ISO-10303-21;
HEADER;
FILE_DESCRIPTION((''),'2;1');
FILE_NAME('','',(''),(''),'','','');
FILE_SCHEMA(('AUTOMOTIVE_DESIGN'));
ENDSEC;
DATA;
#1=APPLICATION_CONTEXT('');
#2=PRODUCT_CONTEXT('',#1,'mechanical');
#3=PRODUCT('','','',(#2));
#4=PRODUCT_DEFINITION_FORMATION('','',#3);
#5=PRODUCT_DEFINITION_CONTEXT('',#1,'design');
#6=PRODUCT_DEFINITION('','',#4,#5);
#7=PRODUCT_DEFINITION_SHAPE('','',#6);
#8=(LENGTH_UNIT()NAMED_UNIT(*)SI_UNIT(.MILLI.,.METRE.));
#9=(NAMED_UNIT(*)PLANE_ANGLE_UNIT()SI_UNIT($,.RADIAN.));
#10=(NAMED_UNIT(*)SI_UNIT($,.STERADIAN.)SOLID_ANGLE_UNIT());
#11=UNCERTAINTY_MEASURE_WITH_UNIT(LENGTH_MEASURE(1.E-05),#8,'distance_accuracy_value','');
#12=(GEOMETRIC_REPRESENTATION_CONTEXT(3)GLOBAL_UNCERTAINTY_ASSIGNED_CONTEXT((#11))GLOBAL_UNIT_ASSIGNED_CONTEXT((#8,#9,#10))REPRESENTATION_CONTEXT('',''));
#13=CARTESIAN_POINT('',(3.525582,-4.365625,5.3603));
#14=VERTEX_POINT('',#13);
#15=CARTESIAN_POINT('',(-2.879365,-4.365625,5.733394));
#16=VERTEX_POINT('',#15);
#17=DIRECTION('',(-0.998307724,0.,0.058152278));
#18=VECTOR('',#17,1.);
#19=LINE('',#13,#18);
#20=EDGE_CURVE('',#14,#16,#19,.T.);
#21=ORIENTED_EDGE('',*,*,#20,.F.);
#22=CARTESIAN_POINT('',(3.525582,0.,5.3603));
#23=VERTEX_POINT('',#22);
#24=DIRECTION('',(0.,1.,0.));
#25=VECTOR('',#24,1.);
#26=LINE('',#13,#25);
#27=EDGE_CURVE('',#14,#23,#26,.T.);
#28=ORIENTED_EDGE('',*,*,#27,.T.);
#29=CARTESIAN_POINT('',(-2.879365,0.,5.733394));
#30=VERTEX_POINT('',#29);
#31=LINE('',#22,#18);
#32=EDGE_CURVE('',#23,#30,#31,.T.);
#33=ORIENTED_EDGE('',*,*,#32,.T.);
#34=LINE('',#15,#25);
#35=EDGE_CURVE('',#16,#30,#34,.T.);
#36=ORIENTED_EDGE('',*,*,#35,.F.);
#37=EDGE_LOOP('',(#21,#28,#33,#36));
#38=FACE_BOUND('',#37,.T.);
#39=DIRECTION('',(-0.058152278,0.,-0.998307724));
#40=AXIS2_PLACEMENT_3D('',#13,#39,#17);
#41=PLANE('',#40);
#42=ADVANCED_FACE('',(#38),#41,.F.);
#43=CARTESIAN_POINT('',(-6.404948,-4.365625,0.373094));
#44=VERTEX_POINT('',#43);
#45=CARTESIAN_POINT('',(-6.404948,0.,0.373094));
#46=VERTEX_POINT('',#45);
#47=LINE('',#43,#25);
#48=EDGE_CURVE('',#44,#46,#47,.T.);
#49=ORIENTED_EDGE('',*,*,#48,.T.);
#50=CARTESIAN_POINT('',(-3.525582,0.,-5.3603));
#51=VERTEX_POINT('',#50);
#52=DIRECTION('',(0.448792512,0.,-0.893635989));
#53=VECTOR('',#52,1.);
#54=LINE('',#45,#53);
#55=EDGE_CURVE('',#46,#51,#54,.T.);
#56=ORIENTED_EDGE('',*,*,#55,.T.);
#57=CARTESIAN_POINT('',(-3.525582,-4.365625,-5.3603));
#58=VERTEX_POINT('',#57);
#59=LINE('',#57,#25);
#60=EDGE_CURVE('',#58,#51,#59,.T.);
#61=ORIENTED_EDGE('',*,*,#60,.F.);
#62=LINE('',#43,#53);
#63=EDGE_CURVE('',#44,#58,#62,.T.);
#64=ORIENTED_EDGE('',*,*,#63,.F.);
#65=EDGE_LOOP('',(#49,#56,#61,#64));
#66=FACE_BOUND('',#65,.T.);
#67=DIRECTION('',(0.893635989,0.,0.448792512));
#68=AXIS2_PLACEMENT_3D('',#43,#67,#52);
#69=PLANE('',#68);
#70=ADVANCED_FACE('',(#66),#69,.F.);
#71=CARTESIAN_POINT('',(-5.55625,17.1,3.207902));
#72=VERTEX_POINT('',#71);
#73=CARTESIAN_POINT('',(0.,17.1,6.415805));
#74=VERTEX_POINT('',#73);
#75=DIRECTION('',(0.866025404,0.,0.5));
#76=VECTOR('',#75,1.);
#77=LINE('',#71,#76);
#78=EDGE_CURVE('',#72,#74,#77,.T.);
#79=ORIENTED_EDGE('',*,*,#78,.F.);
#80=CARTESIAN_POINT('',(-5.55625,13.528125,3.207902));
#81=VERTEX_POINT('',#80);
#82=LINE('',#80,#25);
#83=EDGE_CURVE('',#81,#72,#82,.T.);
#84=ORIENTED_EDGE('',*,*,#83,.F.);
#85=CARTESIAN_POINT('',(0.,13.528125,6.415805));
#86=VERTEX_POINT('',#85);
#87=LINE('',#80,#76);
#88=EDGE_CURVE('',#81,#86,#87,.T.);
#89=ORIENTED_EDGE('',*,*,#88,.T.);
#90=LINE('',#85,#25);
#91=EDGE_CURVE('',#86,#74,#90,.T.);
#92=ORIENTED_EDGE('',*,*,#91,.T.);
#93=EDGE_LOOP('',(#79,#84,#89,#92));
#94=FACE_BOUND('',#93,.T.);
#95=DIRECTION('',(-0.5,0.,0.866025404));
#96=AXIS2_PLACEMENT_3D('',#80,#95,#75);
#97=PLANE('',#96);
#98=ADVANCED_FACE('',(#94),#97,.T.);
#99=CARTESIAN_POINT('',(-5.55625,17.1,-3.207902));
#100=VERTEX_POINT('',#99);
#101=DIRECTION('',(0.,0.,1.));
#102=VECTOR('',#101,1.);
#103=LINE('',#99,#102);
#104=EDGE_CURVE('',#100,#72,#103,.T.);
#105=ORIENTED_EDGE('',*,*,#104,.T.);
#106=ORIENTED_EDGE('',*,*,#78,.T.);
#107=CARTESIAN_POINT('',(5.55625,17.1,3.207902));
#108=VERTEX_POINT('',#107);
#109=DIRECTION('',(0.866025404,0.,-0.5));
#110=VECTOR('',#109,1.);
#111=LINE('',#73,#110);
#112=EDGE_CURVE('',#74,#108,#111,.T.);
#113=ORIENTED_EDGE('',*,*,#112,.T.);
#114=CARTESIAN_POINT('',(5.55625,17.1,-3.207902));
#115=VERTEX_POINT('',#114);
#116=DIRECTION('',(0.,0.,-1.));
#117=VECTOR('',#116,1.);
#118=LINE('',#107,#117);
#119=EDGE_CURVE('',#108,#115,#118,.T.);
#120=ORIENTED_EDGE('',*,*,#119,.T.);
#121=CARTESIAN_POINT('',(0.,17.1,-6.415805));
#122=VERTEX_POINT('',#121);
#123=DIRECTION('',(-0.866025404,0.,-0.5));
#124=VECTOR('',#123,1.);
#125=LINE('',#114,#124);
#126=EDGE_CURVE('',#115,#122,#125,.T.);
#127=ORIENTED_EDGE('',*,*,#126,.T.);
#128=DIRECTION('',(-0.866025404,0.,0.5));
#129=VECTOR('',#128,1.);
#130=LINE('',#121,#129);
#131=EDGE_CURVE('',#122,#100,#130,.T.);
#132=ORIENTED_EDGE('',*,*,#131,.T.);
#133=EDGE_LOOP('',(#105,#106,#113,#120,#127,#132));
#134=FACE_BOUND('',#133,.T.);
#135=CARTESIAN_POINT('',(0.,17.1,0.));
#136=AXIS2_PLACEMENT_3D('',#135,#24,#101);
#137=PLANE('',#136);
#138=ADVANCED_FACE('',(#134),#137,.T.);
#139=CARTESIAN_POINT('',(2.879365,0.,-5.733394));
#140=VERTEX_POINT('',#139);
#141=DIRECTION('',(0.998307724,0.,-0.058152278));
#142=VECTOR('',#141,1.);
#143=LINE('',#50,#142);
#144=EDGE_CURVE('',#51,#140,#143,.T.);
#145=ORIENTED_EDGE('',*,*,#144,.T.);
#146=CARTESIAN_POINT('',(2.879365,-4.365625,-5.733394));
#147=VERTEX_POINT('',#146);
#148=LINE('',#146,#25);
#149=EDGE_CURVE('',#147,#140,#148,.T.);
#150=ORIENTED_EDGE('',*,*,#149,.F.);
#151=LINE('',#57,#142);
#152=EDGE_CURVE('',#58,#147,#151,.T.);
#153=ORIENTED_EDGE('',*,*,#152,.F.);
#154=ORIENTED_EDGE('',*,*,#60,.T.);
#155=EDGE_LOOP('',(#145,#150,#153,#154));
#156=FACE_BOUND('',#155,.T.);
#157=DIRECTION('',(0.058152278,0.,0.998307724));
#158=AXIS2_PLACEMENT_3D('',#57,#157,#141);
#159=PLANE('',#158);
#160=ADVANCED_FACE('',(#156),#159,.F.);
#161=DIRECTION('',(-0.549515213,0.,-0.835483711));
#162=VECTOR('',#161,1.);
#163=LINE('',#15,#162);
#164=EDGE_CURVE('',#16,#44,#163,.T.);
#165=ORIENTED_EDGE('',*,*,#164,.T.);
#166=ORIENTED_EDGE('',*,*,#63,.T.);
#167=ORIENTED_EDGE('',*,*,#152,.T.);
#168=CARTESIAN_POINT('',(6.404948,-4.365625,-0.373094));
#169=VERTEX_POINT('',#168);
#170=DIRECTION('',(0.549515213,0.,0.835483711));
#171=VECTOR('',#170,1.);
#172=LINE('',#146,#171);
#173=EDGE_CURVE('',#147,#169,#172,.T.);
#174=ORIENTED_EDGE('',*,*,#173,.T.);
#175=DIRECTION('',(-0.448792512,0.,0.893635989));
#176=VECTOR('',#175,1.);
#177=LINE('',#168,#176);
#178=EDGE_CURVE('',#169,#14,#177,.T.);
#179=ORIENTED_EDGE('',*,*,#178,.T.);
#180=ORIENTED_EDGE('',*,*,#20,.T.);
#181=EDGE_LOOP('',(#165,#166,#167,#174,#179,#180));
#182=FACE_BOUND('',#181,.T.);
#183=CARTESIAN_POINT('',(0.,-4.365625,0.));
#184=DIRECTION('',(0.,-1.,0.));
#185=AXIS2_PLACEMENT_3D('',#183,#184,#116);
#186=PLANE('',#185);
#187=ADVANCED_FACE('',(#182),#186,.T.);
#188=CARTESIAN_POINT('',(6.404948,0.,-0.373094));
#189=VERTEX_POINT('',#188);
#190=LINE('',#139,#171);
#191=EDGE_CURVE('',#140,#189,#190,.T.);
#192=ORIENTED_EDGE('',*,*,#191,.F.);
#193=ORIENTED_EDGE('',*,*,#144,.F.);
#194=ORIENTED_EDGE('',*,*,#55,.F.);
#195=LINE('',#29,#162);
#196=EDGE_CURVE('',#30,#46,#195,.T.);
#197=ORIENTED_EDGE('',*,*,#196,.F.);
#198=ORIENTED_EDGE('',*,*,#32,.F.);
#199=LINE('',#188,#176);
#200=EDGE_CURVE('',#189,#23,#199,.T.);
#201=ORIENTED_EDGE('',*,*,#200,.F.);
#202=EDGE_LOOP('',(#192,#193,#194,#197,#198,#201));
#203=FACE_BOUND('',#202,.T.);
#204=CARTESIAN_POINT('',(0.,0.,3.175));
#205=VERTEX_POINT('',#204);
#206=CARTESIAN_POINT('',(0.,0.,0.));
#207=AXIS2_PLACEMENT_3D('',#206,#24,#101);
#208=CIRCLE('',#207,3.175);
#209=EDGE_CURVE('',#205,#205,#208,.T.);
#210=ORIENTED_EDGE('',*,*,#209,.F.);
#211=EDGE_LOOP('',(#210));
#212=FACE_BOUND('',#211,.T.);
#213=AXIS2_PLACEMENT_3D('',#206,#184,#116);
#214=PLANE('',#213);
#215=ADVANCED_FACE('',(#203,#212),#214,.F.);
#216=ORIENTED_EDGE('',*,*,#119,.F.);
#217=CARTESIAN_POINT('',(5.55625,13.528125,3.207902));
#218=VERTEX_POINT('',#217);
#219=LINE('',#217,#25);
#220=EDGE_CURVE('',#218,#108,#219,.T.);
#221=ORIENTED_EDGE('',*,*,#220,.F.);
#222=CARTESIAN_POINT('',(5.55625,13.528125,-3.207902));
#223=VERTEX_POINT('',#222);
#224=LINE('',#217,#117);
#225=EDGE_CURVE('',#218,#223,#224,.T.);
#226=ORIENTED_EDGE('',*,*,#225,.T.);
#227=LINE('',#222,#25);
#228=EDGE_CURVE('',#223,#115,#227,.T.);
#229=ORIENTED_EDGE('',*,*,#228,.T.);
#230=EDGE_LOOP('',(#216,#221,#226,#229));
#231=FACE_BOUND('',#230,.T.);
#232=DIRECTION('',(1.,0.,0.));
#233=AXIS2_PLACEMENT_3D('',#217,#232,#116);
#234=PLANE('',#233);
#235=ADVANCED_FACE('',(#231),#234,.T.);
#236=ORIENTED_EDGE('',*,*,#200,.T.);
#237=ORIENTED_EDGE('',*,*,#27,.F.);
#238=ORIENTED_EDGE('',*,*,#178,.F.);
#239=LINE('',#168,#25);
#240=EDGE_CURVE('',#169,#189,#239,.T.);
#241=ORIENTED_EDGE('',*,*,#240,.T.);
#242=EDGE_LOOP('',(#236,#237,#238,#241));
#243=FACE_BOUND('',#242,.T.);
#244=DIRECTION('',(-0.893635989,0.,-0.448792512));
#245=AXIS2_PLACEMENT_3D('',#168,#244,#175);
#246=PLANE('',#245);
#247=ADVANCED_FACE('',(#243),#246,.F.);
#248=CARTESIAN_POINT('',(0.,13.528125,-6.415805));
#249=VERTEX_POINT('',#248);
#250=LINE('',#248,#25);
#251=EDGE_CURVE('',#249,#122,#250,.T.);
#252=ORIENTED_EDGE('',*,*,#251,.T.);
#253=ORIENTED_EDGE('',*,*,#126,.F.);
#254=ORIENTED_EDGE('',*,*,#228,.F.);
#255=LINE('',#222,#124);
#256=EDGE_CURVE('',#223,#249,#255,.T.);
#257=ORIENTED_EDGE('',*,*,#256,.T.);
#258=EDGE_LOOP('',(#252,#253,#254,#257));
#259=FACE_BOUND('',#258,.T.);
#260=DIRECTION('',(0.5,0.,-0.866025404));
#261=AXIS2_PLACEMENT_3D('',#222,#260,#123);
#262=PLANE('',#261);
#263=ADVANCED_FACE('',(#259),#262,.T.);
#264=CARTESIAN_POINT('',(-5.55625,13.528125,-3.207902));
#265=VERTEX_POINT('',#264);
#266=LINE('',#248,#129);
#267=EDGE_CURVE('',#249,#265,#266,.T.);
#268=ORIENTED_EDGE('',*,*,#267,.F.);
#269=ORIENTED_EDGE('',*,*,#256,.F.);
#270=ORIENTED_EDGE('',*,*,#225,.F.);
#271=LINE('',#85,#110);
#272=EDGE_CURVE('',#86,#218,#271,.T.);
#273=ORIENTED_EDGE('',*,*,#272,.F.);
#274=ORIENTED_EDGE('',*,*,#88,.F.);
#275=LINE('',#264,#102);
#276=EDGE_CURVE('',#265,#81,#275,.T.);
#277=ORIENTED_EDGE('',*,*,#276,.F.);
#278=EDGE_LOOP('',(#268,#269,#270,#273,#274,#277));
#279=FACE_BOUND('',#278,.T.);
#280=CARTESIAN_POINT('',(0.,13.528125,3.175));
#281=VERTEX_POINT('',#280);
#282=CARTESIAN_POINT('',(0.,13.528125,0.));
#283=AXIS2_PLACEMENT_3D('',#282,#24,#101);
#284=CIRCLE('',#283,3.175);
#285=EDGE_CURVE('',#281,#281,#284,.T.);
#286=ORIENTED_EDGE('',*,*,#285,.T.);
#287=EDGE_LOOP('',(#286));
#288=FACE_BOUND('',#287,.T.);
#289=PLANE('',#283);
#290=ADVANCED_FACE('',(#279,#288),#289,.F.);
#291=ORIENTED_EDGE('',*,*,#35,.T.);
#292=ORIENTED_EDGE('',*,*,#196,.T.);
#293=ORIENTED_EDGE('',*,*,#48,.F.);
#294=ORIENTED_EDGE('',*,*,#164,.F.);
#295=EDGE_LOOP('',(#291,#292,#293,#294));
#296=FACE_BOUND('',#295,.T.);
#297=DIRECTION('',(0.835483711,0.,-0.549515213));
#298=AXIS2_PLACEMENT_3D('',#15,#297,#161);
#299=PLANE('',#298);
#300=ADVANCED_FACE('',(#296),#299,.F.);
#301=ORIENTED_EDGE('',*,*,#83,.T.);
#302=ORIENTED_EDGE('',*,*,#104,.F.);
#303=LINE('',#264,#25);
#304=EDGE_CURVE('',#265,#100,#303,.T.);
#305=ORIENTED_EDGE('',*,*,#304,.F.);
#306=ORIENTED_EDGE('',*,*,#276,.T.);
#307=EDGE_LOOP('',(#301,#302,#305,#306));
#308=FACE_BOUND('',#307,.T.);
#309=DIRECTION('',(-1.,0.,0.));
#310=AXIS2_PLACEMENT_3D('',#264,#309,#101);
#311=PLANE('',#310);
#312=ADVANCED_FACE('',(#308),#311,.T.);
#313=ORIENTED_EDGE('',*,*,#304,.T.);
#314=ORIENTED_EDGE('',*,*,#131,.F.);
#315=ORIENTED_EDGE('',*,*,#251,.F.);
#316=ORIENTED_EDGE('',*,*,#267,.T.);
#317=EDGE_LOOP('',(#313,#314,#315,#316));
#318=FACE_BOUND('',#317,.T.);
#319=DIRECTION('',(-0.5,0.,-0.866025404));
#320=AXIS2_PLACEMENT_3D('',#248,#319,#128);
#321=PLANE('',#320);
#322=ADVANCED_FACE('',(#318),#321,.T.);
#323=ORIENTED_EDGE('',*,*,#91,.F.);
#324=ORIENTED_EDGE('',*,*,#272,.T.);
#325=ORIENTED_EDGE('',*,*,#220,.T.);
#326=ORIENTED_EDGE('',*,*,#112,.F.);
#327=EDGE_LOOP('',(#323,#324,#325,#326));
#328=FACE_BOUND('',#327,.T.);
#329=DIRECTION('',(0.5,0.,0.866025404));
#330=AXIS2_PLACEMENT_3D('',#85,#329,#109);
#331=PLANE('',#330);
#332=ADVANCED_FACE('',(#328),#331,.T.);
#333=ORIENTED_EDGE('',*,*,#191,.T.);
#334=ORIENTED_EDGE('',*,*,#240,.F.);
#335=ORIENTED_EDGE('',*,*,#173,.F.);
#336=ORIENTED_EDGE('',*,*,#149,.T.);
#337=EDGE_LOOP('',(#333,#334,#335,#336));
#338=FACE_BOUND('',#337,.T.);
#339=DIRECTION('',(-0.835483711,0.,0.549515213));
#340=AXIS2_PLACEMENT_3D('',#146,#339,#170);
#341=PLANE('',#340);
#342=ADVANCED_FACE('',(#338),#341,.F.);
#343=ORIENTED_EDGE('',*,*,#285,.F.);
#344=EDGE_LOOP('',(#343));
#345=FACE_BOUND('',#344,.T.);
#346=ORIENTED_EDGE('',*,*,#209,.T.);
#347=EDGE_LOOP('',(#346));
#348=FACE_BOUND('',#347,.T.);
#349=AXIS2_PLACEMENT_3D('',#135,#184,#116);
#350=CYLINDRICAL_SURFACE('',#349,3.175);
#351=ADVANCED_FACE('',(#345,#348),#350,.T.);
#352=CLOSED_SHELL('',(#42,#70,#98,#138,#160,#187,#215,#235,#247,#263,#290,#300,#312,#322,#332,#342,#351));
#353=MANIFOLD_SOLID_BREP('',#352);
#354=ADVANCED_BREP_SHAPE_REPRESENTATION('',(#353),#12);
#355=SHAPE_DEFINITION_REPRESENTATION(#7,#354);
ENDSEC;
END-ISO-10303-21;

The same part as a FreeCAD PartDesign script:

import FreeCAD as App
import Part
import Sketcher

V = App.Vector
Q = App.Units.Quantity


def add_polygon(sketch, points):
    """Adds a closed chain of lines whose ends are joined by coincident constraints."""
    first, n = sketch.GeometryCount, len(points)
    for a, b in zip(points, points[1:] + points[:1]):
        sketch.addGeometry(Part.LineSegment(App.Vector(*a, 0), App.Vector(*b, 0)), False)
    for i in range(n):
        sketch.addConstraint(Sketcher.Constraint("Coincident", first + i, 2, first + (i + 1) % n, 1))

doc = App.newDocument("Part")
body = doc.addObject("PartDesign::Body", "Body")

sketch1 = body.newObject("Sketcher::SketchObject", "Sketch")
sketch1.AttachmentSupport = (doc.getObject("XZ_Plane"), [""])
sketch1.MapMode = "FlatFace"
sketch1.addGeometry(Part.Circle(V(0, 0, 0), V(0, 0, 1), 3.175), False)
sketch1.addConstraint(Sketcher.Constraint("Coincident", 0, 3, -1, 1))
sketch1.addConstraint(Sketcher.Constraint("Diameter", 0, Q("0.25 in")))
pad1 = body.newObject("PartDesign::Pad", "Pad")
pad1.Profile = sketch1
pad1.Length = 17.1
pad1.Reversed = True

sketch2 = body.newObject("Sketcher::SketchObject", "Sketch001")
sketch2.AttachmentSupport = (doc.getObject("XZ_Plane"), [""])
sketch2.MapMode = "FlatFace"
add_polygon(sketch2, [(6.404948, -0.373094), (3.525582, 5.3603), (-2.879365, 5.733394), (-6.404948, 0.373094), (-3.525582, -5.3603), (2.879365, -5.733394)])
sketch2.addConstraint(Sketcher.Constraint("Symmetric", 0, 2, 3, 2, -1, 1))
sketch2.addConstraint(Sketcher.Constraint("Symmetric", 1, 2, 4, 2, -1, 1))
sketch2.addConstraint(Sketcher.Constraint("Symmetric", 2, 2, 5, 2, -1, 1))
sketch2.addConstraint(Sketcher.Constraint("Equal", 0, 1))
sketch2.addConstraint(Sketcher.Constraint("Equal", 1, 2))
sketch2.addConstraint(Sketcher.Constraint("DistanceY", -1, 1, 0, 2, Q("5.3603 mm")))
sketch2.addConstraint(Sketcher.Constraint("DistanceY", 2, 2, 1, 2, Q("5.3603 mm")))
sketch2.addConstraint(Sketcher.Constraint("DistanceX", 2, 2, 0, 2, Q("9.93053 mm")))
sketch2.addConstraint(Sketcher.Constraint("DistanceX", 1, 2, 4, 2, Q("5.75873 mm")))
pad2 = body.newObject("PartDesign::Pad", "Pad001")
pad2.Profile = sketch2
pad2.Length = Q("0.171875 in")

sketch3 = body.newObject("Sketcher::SketchObject", "Sketch002")
sketch3.AttachmentSupport = (doc.getObject("XZ_Plane"), [""])
sketch3.MapMode = "FlatFace"
sketch3.AttachmentOffset = App.Placement(V(0, 0, -17.1), App.Rotation())
add_polygon(sketch3, [(0, -6.415805), (-5.55625, -3.207902), (-5.55625, 3.207902), (0, 6.415805), (5.55625, 3.207902), (5.55625, -3.207902)])
sketch3.addConstraint(Sketcher.Constraint("Vertical", 1))
sketch3.addConstraint(Sketcher.Constraint("Vertical", 4))
sketch3.addConstraint(Sketcher.Constraint("Symmetric", 0, 2, 3, 2, -1, 1))
sketch3.addConstraint(Sketcher.Constraint("Symmetric", 2, 2, 5, 2, -1, 1))
sketch3.addConstraint(Sketcher.Constraint("PointOnObject", 2, 2, -2))
sketch3.addConstraint(Sketcher.Constraint("Parallel", 2, 5))
sketch3.addConstraint(Sketcher.Constraint("Horizontal", 1, 2, 3, 2))
sketch3.addConstraint(Sketcher.Constraint("Angle", 0, Q("150 deg")))
sketch3.addConstraint(Sketcher.Constraint("DistanceX", 0, 2, -1, 1, Q("0.21875 in")))
sketch3.addConstraint(Sketcher.Constraint("DistanceY", 1, 1, 1, 2, Q("6.415805 mm")))
pad3 = body.newObject("PartDesign::Pad", "Pad002")
pad3.Profile = sketch3
pad3.Length = Q("0.140625 in")

doc.recompute()
